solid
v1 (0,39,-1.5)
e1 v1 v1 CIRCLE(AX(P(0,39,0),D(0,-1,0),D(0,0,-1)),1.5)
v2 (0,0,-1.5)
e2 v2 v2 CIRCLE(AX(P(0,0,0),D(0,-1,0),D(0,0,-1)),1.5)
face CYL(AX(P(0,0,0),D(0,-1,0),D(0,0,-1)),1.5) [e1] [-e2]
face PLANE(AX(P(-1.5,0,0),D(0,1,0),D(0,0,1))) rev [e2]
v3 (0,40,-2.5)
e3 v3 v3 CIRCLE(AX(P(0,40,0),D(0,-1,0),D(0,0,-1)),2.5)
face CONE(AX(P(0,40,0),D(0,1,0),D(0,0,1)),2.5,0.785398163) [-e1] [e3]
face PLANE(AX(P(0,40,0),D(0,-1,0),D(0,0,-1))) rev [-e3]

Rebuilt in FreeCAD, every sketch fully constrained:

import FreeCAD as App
import Part
import Sketcher
from FreeCAD import Vector
Q = App.Units.Quantity


def add_polygon(sketch, points):
    """Adds a closed chain of lines whose ends are joined by coincident constraints."""
    first, n = sketch.GeometryCount, len(points)
    for a, b in zip(points, points[1:] + points[:1]):
        sketch.addGeometry(Part.LineSegment(App.Vector(*a, 0), App.Vector(*b, 0)), False)
    for i in range(n):
        sketch.addConstraint(Sketcher.Constraint("Coincident", first + i, 2, first + (i + 1) % n, 1))

doc = App.newDocument("Part")
body = doc.addObject("PartDesign::Body", "Body")

# Sketch on XY plane
sketch1 = doc.addObject("Sketcher::SketchObject", "Sketch")
body.addObject(sketch1)
sketch1.AttachmentSupport = (doc.XY_Plane, [""])
sketch1.MapMode = "FlatFace"
add_polygon(sketch1, [(0, 40), (-2.5, 40), (-1.5, 39), (-1.5, 0), (0, 0)])  # lines 0-4
sketch1.addConstraint(Sketcher.Constraint("Horizontal", 0))
sketch1.addConstraint(Sketcher.Constraint("Vertical", 2))
sketch1.addConstraint(Sketcher.Constraint("Horizontal", 3))
sketch1.addConstraint(Sketcher.Constraint("Vertical", 4))
sketch1.addConstraint(Sketcher.Constraint("Coincident", 3, 2, -1, 1))
sketch1.addConstraint(Sketcher.Constraint("DistanceY", 2, 2, 2, 1, 39.0))
sketch1.addConstraint(Sketcher.Constraint("DistanceY", 4, 1, 4, 2, 40.0))
sketch1.addConstraint(Sketcher.Constraint("Angle", 1, Q("-45 deg")))
sketch1.addConstraint(Sketcher.Constraint("DistanceX", 0, 2, 0, 1, 2.5))
revolution = doc.addObject("PartDesign::Revolution", "Revolution")
body.addObject(revolution)
revolution.Profile = sketch1
revolution.ReferenceAxis = (sketch1, ["V_Axis"])
revolution.Angle = 360

doc.recompute()
